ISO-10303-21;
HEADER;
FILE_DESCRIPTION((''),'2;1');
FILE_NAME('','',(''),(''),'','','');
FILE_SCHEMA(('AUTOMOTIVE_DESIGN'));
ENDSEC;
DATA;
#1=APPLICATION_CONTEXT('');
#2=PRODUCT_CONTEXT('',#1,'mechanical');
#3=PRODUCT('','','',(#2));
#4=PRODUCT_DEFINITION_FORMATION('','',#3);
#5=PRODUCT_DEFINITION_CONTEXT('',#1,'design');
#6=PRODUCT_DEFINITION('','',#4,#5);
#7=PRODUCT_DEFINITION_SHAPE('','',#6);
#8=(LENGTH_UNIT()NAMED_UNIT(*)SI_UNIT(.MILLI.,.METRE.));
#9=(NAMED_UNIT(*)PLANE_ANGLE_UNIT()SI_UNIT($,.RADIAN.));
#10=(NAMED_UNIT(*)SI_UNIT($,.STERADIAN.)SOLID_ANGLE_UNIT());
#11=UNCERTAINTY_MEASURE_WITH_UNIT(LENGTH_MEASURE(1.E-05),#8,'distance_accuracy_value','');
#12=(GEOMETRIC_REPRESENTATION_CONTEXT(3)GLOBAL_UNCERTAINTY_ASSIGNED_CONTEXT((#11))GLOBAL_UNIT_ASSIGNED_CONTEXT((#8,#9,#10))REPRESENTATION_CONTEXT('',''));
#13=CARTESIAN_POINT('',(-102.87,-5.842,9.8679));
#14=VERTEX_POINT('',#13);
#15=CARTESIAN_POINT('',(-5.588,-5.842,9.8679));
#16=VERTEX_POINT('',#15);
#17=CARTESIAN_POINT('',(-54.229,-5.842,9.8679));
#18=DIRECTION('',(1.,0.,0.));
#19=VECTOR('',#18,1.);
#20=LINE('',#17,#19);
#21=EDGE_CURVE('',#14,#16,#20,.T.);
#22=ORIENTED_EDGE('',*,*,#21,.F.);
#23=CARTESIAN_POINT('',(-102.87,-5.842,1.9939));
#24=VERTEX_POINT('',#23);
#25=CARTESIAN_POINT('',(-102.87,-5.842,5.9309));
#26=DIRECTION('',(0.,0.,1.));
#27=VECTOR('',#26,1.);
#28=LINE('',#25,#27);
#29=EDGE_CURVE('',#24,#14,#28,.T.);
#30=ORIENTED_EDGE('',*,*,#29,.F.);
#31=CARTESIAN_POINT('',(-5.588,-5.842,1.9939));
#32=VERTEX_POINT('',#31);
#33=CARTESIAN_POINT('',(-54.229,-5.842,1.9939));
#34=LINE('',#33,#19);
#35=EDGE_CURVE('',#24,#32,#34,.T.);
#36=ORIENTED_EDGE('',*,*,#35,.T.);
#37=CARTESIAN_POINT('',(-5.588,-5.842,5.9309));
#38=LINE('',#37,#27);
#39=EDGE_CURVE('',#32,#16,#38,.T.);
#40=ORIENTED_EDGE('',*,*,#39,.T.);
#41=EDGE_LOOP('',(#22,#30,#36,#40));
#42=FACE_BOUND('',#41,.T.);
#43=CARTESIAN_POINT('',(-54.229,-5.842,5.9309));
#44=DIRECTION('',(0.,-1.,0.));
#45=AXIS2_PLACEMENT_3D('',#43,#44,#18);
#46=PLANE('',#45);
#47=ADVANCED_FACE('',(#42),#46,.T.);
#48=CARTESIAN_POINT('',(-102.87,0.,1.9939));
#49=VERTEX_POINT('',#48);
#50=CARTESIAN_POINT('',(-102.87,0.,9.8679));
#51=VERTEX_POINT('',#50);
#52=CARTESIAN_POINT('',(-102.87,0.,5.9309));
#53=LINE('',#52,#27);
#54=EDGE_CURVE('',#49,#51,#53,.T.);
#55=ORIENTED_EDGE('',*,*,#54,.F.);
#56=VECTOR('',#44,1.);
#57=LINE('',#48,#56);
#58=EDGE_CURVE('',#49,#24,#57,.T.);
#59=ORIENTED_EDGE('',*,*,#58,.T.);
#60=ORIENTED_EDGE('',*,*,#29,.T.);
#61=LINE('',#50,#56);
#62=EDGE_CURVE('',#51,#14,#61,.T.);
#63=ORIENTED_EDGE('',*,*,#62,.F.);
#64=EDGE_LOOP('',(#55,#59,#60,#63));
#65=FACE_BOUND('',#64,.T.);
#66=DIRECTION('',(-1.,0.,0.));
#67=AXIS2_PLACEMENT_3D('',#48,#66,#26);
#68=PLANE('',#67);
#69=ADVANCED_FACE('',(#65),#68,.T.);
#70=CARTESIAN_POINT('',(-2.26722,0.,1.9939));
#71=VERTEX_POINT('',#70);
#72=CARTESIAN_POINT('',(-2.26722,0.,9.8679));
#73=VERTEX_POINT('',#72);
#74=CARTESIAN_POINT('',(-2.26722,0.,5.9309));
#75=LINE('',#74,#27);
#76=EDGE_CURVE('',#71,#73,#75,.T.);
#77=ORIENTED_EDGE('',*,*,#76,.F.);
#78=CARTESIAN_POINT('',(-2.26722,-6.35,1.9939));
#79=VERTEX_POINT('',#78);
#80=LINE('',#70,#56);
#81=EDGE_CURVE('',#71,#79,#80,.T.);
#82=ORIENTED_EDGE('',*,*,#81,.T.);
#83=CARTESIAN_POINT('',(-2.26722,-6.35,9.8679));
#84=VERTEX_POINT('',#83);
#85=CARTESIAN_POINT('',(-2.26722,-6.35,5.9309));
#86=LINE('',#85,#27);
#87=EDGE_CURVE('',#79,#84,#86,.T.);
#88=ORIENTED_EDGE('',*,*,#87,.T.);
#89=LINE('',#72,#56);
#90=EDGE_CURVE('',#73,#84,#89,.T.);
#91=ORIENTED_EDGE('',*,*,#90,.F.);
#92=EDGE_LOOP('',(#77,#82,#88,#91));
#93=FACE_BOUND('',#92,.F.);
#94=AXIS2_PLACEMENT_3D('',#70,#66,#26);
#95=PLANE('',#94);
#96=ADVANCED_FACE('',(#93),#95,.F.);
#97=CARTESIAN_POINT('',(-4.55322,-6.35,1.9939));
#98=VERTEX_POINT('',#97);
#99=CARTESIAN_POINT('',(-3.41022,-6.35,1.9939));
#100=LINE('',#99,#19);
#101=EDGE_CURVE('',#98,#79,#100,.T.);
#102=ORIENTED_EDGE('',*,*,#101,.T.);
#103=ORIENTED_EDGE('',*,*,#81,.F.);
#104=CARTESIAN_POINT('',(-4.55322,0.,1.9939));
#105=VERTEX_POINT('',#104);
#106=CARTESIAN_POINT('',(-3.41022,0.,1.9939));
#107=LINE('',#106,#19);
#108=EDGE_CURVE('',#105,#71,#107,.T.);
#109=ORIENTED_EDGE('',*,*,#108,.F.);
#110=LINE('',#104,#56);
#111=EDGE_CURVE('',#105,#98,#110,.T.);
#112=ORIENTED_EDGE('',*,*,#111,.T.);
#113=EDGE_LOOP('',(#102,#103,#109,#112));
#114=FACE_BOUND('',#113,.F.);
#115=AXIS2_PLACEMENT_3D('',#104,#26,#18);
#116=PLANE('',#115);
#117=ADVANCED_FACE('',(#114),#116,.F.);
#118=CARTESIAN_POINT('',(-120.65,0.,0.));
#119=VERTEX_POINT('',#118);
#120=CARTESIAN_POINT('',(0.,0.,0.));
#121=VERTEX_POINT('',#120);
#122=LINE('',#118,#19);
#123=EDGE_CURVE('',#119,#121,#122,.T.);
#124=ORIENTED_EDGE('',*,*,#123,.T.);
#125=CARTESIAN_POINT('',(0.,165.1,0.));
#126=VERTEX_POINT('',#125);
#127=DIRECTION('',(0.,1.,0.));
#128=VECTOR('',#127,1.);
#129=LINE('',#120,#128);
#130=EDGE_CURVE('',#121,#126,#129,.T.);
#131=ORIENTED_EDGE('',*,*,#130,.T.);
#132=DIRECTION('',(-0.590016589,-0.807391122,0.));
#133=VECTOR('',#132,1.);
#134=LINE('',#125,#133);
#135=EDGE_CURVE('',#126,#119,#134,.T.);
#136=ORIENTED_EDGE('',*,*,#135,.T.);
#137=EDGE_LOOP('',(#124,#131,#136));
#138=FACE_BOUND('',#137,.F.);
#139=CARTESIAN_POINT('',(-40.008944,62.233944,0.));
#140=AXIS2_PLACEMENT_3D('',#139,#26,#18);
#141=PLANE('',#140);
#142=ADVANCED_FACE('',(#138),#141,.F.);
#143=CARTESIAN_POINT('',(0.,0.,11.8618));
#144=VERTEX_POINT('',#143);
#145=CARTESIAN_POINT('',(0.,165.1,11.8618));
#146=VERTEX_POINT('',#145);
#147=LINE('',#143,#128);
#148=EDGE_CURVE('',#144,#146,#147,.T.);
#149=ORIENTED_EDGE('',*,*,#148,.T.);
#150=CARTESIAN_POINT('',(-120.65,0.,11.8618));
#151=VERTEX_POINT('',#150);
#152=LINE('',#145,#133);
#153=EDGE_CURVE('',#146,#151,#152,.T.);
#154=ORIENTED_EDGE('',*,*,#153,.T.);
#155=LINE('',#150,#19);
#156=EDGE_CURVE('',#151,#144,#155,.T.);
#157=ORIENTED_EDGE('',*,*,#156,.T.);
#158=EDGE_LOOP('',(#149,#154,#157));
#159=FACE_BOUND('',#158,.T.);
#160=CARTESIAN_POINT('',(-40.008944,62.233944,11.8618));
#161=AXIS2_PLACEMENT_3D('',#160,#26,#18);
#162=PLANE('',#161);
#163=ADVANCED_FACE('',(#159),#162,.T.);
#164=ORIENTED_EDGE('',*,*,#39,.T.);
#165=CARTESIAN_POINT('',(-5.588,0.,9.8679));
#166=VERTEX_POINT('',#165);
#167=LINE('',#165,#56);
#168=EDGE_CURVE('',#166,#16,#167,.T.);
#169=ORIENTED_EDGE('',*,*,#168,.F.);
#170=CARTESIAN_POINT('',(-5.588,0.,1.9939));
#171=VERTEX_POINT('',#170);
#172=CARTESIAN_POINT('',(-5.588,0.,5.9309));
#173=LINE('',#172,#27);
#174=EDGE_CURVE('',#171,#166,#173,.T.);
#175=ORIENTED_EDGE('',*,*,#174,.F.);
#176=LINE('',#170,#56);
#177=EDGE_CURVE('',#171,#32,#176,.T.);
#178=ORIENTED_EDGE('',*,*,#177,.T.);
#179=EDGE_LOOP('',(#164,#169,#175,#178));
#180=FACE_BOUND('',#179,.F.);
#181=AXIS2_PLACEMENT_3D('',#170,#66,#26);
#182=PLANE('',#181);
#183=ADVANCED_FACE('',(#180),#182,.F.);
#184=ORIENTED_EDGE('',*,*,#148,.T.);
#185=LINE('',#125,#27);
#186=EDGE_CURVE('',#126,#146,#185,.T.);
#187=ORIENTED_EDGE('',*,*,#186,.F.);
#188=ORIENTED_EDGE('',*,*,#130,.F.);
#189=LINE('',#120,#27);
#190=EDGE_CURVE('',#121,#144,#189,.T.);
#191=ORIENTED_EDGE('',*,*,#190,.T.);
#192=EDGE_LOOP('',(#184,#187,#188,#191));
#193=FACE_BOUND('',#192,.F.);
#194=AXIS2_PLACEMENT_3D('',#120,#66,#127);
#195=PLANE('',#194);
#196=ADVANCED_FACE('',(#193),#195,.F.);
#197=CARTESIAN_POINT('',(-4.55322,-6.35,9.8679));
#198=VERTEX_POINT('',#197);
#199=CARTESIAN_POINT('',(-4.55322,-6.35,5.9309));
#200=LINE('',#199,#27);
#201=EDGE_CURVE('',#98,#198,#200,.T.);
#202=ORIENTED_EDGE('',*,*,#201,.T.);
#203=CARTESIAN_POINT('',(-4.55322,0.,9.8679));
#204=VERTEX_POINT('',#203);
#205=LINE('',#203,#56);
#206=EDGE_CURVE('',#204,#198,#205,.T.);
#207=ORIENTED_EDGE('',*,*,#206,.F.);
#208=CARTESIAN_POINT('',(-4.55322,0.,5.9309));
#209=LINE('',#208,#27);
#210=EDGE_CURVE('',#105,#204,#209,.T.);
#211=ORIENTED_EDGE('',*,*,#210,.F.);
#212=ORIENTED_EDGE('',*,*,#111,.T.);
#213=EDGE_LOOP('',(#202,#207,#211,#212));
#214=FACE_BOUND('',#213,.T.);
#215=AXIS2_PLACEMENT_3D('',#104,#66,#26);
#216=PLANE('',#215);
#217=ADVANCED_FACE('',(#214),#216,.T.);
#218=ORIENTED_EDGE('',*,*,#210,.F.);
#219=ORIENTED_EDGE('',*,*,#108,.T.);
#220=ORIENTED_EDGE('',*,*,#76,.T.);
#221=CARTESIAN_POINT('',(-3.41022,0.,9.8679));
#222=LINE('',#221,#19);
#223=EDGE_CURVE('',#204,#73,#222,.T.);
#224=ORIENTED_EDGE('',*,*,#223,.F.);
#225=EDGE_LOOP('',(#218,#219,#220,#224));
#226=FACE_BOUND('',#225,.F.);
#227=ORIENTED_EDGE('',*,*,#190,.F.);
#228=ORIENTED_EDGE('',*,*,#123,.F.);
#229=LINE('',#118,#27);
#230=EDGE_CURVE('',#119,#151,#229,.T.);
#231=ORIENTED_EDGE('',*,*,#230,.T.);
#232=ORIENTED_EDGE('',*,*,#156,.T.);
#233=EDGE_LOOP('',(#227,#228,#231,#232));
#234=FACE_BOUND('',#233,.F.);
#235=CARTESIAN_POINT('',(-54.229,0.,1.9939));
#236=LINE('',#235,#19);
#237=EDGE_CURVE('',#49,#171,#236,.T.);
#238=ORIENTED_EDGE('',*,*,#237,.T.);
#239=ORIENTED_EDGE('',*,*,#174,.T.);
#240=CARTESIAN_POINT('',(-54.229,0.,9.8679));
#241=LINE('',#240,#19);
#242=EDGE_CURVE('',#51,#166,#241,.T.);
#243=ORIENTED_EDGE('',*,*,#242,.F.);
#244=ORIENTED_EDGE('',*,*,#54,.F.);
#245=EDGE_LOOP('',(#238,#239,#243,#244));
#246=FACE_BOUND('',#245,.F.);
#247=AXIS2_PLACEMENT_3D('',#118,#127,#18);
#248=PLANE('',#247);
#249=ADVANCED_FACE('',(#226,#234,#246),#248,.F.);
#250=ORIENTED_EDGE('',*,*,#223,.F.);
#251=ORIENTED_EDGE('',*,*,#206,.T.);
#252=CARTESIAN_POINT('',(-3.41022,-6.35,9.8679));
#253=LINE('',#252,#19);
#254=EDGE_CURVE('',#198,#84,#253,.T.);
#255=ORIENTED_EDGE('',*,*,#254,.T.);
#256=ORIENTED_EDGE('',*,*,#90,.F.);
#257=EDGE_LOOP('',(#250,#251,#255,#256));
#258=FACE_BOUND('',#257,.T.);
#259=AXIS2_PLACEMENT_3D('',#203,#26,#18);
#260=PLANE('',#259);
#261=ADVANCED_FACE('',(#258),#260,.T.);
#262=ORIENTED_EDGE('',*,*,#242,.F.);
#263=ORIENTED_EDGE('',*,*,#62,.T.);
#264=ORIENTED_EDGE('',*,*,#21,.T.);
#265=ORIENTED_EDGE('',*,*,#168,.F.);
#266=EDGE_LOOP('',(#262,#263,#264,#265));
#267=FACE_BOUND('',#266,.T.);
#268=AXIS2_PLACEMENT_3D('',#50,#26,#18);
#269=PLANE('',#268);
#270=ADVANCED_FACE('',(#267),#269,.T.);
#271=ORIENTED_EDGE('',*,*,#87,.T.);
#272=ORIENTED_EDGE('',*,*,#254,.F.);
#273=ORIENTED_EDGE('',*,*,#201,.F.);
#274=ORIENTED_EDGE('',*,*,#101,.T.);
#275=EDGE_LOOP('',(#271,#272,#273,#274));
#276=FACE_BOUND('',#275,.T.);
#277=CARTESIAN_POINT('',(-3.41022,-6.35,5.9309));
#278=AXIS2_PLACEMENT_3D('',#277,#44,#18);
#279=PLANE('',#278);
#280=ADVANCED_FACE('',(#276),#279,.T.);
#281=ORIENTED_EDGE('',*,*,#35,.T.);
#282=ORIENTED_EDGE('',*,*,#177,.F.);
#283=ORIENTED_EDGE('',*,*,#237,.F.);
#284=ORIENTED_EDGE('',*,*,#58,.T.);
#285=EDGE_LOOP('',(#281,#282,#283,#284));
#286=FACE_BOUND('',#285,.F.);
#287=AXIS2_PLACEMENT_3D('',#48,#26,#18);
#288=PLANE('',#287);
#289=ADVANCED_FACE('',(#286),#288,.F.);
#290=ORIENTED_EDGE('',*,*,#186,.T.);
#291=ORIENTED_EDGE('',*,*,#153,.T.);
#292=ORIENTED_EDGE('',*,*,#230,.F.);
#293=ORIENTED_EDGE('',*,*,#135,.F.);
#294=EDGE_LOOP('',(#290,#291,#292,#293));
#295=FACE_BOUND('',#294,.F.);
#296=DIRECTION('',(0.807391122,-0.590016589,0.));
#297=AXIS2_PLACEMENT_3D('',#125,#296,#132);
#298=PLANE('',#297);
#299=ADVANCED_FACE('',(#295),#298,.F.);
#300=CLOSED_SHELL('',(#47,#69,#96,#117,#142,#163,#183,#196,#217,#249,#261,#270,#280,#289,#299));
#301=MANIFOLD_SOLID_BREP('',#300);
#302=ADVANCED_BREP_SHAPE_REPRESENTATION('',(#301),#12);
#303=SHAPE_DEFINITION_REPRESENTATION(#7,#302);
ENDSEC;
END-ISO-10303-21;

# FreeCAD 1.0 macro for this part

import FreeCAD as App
import Part
import Sketcher
from FreeCAD import Vector
Q = App.Units.Quantity


def add_polygon(sketch, points):
    """Adds a closed chain of lines whose ends are joined by coincident constraints."""
    first, n = sketch.GeometryCount, len(points)
    for a, b in zip(points, points[1:] + points[:1]):
        sketch.addGeometry(Part.LineSegment(App.Vector(*a, 0), App.Vector(*b, 0)), False)
    for i in range(n):
        sketch.addConstraint(Sketcher.Constraint("Coincident", first + i, 2, first + (i + 1) % n, 1))

doc = App.newDocument("Part")
params = doc.addObject("Spreadsheet::Sheet", "Params")
for row, (alias, value) in enumerate([
    ("sketch1_height", "6.5 in"),
    ("sketch1_width", "4.75 in"),
    ("pad1_length", "0.467 in"),
    ("sketch2_width", "3.83 in"),
    ("sketch2_height", "0.31 in"),
    ("pad2_length", "0.23 in"),
    ("sketch3_width", "0.09 in"),
    ("sketch3_height", "0.31 in"),
    ("pad3_length", "0.25 in"),
], start=1):
    params.set(f"A{row}", alias)
    params.set(f"B{row}", "=" + value)
    params.setAlias(f"B{row}", alias)

body = doc.addObject("PartDesign::Body", "Body")

# Sketch on XY plane
sketch1 = body.newObject("Sketcher::SketchObject", "Sketch")
sketch1.AttachmentSupport = (doc.getObject("XY_Plane"), [""])
sketch1.MapMode = "FlatFace"
add_polygon(sketch1, [(-121, 0), (0, 0), (0, 165)])  # lines 0-2
sketch1.addConstraint(Sketcher.Constraint("Horizontal", 0))
sketch1.addConstraint(Sketcher.Constraint("Vertical", 1))
sketch1.addConstraint(Sketcher.Constraint("Coincident", 0, 2, -1, 1))
sketch1.addConstraint(Sketcher.Constraint("DistanceY", 1, 1, 1, 2, Q("6.5 in")))
sketch1.addConstraint(Sketcher.Constraint("DistanceX", 0, 1, 0, 2, Q("4.75 in")))
sketch1.setExpression("Constraints[6]", "Params.sketch1_height")
sketch1.setExpression("Constraints[7]", "Params.sketch1_width")
pad1 = body.newObject("PartDesign::Pad", "Pad")
pad1.Profile = sketch1
pad1.setExpression("Length", "Params.pad1_length")

# Sketch on XZ plane
sketch2 = body.newObject("Sketcher::SketchObject", "Sketch001")
sketch2.AttachmentSupport = (doc.getObject("XZ_Plane"), [""])
sketch2.MapMode = "FlatFace"
add_polygon(sketch2, [(-103, 10), (-103, 2), (-6, 2), (-6, 10)])  # lines 0-3
sketch2.addConstraint(Sketcher.Constraint("Vertical", 0))
sketch2.addConstraint(Sketcher.Constraint("Horizontal", 1))
sketch2.addConstraint(Sketcher.Constraint("Vertical", 2))
sketch2.addConstraint(Sketcher.Constraint("Horizontal", 3))
sketch2.addConstraint(Sketcher.Constraint("DistanceX", 1, 1, 1, 2, Q("3.83 in")))
sketch2.addConstraint(Sketcher.Constraint("DistanceY", 0, 2, 0, 1, Q("0.31 in")))
sketch2.addConstraint(Sketcher.Constraint("DistanceX", 0, 2, -1, 1, Q("4.05 in")))
sketch2.addConstraint(Sketcher.Constraint("DistanceY", -1, 1, 0, 2, Q("0.0785 in")))
sketch2.setExpression("Constraints[8]", "Params.sketch2_width")
sketch2.setExpression("Constraints[9]", "Params.sketch2_height")
pad2 = body.newObject("PartDesign::Pad", "Pad001")
pad2.Profile = sketch2
pad2.setExpression("Length", "Params.pad2_length")

# Sketch on XZ plane
sketch3 = body.newObject("Sketcher::SketchObject", "Sketch002")
sketch3.AttachmentSupport = (doc.getObject("XZ_Plane"), [""])
sketch3.MapMode = "FlatFace"
add_polygon(sketch3, [(-4.6, 9.9), (-4.6, 2), (-2.3, 2), (-2.3, 9.9)])  # lines 0-3
sketch3.addConstraint(Sketcher.Constraint("Vertical", 0))
sketch3.addConstraint(Sketcher.Constraint("Horizontal", 1))
sketch3.addConstraint(Sketcher.Constraint("Vertical", 2))
sketch3.addConstraint(Sketcher.Constraint("Horizontal", 3))
sketch3.addConstraint(Sketcher.Constraint("DistanceX", 1, 1, 1, 2, Q("0.09 in")))
sketch3.addConstraint(Sketcher.Constraint("DistanceY", 0, 2, 0, 1, Q("0.31 in")))
sketch3.addConstraint(Sketcher.Constraint("DistanceY", -1, 1, 0, 2, Q("0.0785 in")))
sketch3.addConstraint(Sketcher.Constraint("DistanceX", 0, 2, -1, 1, 4.55322))
sketch3.setExpression("Constraints[8]", "Params.sketch3_width")
sketch3.setExpression("Constraints[9]", "Params.sketch3_height")
pad3 = body.newObject("PartDesign::Pad", "Pad002")
pad3.Profile = sketch3
pad3.setExpression("Length", "Params.pad3_length")

doc.recompute()
